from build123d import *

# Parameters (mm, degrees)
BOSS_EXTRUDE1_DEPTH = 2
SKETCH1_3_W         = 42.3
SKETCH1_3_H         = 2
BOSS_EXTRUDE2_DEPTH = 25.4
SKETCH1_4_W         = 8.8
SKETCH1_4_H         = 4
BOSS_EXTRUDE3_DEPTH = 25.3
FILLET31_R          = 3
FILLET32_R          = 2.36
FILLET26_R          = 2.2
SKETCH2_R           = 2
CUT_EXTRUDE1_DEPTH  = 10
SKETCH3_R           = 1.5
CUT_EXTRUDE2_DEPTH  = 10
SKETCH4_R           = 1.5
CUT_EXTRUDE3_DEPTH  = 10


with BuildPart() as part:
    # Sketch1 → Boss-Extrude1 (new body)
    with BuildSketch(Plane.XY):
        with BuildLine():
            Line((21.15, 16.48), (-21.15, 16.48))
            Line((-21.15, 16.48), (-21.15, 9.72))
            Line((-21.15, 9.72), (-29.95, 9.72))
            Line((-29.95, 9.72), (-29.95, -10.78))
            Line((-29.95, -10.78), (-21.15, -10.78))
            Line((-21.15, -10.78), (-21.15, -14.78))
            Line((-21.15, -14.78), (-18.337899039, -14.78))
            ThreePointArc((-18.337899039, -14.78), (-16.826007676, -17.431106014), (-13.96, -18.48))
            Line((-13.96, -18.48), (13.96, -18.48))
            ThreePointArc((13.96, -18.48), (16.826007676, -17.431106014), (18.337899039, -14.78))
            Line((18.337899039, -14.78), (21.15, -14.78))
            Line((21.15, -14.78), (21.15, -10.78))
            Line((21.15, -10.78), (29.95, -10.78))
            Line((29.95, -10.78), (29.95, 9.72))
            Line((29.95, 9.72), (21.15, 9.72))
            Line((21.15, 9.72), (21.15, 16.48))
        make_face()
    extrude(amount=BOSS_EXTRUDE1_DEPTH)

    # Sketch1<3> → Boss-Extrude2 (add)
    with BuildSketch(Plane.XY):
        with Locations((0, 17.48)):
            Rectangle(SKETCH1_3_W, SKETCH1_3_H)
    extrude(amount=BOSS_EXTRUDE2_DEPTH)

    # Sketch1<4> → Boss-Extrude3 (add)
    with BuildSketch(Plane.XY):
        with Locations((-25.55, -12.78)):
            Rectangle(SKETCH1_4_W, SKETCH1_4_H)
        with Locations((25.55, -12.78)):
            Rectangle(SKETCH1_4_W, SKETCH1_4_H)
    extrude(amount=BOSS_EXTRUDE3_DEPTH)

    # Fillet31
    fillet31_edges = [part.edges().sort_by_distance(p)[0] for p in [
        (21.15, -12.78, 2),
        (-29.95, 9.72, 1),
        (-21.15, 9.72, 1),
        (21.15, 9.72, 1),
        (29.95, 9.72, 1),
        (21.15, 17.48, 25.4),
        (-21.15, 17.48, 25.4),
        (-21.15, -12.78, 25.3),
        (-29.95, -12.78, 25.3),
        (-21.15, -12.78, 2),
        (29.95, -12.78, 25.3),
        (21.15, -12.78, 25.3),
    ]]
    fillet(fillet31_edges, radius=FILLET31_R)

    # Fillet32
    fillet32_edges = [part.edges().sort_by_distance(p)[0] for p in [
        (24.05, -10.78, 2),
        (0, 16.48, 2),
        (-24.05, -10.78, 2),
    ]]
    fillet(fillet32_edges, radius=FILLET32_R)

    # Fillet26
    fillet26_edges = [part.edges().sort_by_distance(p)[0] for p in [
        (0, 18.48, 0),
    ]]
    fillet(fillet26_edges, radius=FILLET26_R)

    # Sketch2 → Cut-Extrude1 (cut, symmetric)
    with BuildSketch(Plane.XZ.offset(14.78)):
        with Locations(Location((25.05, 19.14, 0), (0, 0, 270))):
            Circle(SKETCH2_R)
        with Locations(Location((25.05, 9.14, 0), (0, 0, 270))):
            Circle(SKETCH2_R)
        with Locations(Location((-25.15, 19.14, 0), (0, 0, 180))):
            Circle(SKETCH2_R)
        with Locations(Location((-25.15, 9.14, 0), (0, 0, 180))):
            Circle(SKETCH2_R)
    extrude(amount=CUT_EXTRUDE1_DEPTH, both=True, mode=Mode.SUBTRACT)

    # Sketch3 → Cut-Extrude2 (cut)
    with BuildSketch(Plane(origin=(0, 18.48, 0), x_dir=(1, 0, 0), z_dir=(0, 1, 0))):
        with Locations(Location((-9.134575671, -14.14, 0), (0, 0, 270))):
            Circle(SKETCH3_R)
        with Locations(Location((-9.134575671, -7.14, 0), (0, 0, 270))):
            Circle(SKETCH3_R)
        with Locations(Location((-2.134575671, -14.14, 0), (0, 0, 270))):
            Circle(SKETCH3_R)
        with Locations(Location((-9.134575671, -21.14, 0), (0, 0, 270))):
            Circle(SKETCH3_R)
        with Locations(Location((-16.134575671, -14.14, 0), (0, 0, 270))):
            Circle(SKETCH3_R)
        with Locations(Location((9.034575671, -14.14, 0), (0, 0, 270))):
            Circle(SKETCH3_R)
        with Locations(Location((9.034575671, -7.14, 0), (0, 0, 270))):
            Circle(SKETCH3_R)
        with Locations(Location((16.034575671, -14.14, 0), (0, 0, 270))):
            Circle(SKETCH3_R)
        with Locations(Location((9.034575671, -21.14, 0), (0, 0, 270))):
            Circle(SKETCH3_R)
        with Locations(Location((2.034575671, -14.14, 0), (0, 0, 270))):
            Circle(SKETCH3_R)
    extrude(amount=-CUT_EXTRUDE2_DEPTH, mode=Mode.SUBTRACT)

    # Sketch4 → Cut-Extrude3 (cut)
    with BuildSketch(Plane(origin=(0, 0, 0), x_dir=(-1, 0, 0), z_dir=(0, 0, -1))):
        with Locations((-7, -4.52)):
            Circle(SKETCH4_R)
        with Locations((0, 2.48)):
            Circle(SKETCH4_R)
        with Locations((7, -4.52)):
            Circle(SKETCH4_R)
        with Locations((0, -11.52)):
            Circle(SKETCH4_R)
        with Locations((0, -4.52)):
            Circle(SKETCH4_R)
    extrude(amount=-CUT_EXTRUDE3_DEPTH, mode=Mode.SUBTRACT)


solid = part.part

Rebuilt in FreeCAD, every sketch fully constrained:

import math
import FreeCAD as App
import Part
import Sketcher
from FreeCAD import Vector
Q = App.Units.Quantity


def edges_at(feature, points):
    """Names of the edges that pass closest to the given points."""
    edges = feature.Shape.Edges
    near = lambda p: min(range(len(edges)), key=lambda i: edges[i].distToShape(Part.Vertex(*p))[0])
    return sorted({f"Edge{near(p) + 1}" for p in points})


def add_polygon(sketch, points):
    """Adds a closed chain of lines whose ends are joined by coincident constraints."""
    first, n = sketch.GeometryCount, len(points)
    for a, b in zip(points, points[1:] + points[:1]):
        sketch.addGeometry(Part.LineSegment(App.Vector(*a, 0), App.Vector(*b, 0)), False)
    for i in range(n):
        sketch.addConstraint(Sketcher.Constraint("Coincident", first + i, 2, first + (i + 1) % n, 1))

doc = App.newDocument("Part")
params = doc.addObject("Spreadsheet::Sheet", "Params")
for row, (alias, value) in enumerate([
    ("sketch1_height", "4 mm"),
    ("sketch1_radius", "4.44 mm"),
    ("sketch1_width", "42.3 mm"),
    ("sketch1_width2", "8.8 mm"),
    ("sketch1_height2", "20.5 mm"),
    ("pad1_length", "2 mm"),
    ("sketch2_height", "2 mm"),
    ("sketch2_width", "42.3 mm"),
    ("pad2_length", "25.4 mm"),
    ("sketch3_height", "4 mm"),
    ("sketch3_width", "8.8 mm"),
    ("pad3_length", "25.3 mm"),
    ("fillet_radius", "3 mm"),
    ("fillet2_radius", "2.36 mm"),
    ("fillet3_radius", "2.2 mm"),
    ("sketch4_diameter", "4 mm"),
    ("pocket1_length", "20 mm"),
    ("sketch5_diameter", "3 mm"),
    ("pocket2_length", "10 mm"),
    ("sketch6_diameter", "3 mm"),
    ("pocket3_length", "10 mm"),
], start=1):
    params.set(f"A{row}", alias)
    params.set(f"B{row}", "=" + value)
    params.setAlias(f"B{row}", alias)

body = doc.addObject("PartDesign::Body", "Body")

# Sketch on XY plane
sketch1 = body.newObject("Sketcher::SketchObject", "Sketch")
sketch1.AttachmentSupport = (doc.getObject("XY_Plane"), [""])
sketch1.MapMode = "FlatFace"
sketch1.addGeometry([
    Part.LineSegment(Vector(21.15, 16.48, 0), Vector(-21.15, 16.48, 0)),  # 0
    Part.LineSegment(Vector(-21.15, 16.48, 0), Vector(-21.15, 9.72, 0)),  # 1
    Part.LineSegment(Vector(-21.15, 9.72, 0), Vector(-29.95, 9.72, 0)),  # 2
    Part.LineSegment(Vector(-29.95, 9.72, 0), Vector(-29.95, -10.78, 0)),  # 3
    Part.LineSegment(Vector(-29.95, -10.78, 0), Vector(-21.15, -10.78, 0)),  # 4
    Part.LineSegment(Vector(-21.15, -10.78, 0), Vector(-21.15, -14.78, 0)),  # 5
    Part.LineSegment(Vector(-21.15, -14.78, 0), Vector(-18.337899, -14.78, 0)),  # 6
    Part.ArcOfCircle(Part.Circle(Vector(-13.96, -14.04, 0), Vector(0, 0, 1), 4.44), math.radians(-170.405932), math.radians(-90)),  # 7
    Part.LineSegment(Vector(-13.96, -18.48, 0), Vector(13.96, -18.48, 0)),  # 8
    Part.ArcOfCircle(Part.Circle(Vector(13.96, -14.04, 0), Vector(0, 0, 1), 4.44), math.radians(-90), math.radians(-9.594068)),  # 9
    Part.LineSegment(Vector(18.337899, -14.78, 0), Vector(21.15, -14.78, 0)),  # 10
    Part.LineSegment(Vector(21.15, -14.78, 0), Vector(21.15, -10.78, 0)),  # 11
    Part.LineSegment(Vector(21.15, -10.78, 0), Vector(29.95, -10.78, 0)),  # 12
    Part.LineSegment(Vector(29.95, -10.78, 0), Vector(29.95, 9.72, 0)),  # 13
    Part.LineSegment(Vector(29.95, 9.72, 0), Vector(21.15, 9.72, 0)),  # 14
    Part.LineSegment(Vector(21.15, 9.72, 0), Vector(21.15, 16.48, 0)),  # 15
], False)
sketch1.addConstraint([
    Sketcher.Constraint("Coincident", 0, 2, 1, 1),
    Sketcher.Constraint("Coincident", 1, 2, 2, 1),
    Sketcher.Constraint("Coincident", 2, 2, 3, 1),
    Sketcher.Constraint("Coincident", 3, 2, 4, 1),
    Sketcher.Constraint("Coincident", 4, 2, 5, 1),
    Sketcher.Constraint("Coincident", 5, 2, 6, 1),
    Sketcher.Constraint("Coincident", 6, 2, 7, 1),
    Sketcher.Constraint("Tangent", 7, 2, 8, 1),
    Sketcher.Constraint("Tangent", 8, 2, 9, 1),
    Sketcher.Constraint("Coincident", 9, 2, 10, 1),
    Sketcher.Constraint("Coincident", 10, 2, 11, 1),
    Sketcher.Constraint("Coincident", 11, 2, 12, 1),
    Sketcher.Constraint("Coincident", 12, 2, 13, 1),
    Sketcher.Constraint("Coincident", 13, 2, 14, 1),
    Sketcher.Constraint("Coincident", 14, 2, 15, 1),
    Sketcher.Constraint("Coincident", 15, 2, 0, 1),
    Sketcher.Constraint("Horizontal", 0),
    Sketcher.Constraint("Vertical", 1),
    Sketcher.Constraint("Horizontal", 2),
    Sketcher.Constraint("Vertical", 3),
    Sketcher.Constraint("Horizontal", 4),
    Sketcher.Constraint("Vertical", 5),
    Sketcher.Constraint("Horizontal", 6),
    Sketcher.Constraint("Horizontal", 8),
    Sketcher.Constraint("Horizontal", 10),
    Sketcher.Constraint("Vertical", 11),
    Sketcher.Constraint("Horizontal", 12),
    Sketcher.Constraint("Vertical", 13),
    Sketcher.Constraint("Horizontal", 14),
    Sketcher.Constraint("Vertical", 15),
    Sketcher.Constraint("Equal", 7, 9),
    Sketcher.Constraint("Symmetric", 6, 2, 9, 2, -2),
    Sketcher.Constraint("Symmetric", 4, 2, 11, 2, -2),
    Sketcher.Constraint("Symmetric", 2, 2, 13, 2, -2),
    Sketcher.Constraint("Vertical", 1, 2, 4, 2),
    Sketcher.Constraint("Vertical", 11, 2, 14, 2),
    Sketcher.Constraint("DistanceY", 5, 2, 5, 1, Q("4 mm")),
    Sketcher.Constraint("Radius", 7, Q("4.44 mm")),
    Sketcher.Constraint("DistanceX", 0, 2, 0, 1, Q("42.3 mm")),
    Sketcher.Constraint("DistanceX", 2, 2, 2, 1, Q("8.8 mm")),
    Sketcher.Constraint("DistanceY", 3, 2, 3, 1, Q("20.5 mm")),
    Sketcher.Constraint("DistanceX", 8, 1, 8, 2, Q("27.92 mm")),
    Sketcher.Constraint("DistanceY", 1, 2, 1, 1, Q("6.76 mm")),
    Sketcher.Constraint("DistanceY", 7, 2, 6, 2, Q("3.7 mm")),
    Sketcher.Constraint("DistanceY", 7, 3, -1, 1, Q("14.04 mm")),
])
sketch1.setExpression("Constraints[36]", "Params.sketch1_height")
sketch1.setExpression("Constraints[37]", "Params.sketch1_radius")
sketch1.setExpression("Constraints[38]", "Params.sketch1_width")
sketch1.setExpression("Constraints[39]", "Params.sketch1_width2")
sketch1.setExpression("Constraints[40]", "Params.sketch1_height2")
pad1 = body.newObject("PartDesign::Pad", "Pad")
pad1.Profile = sketch1
pad1.setExpression("Length", "Params.pad1_length")

# Sketch on XY plane
sketch2 = body.newObject("Sketcher::SketchObject", "Sketch001")
sketch2.AttachmentSupport = (doc.getObject("XY_Plane"), [""])
sketch2.MapMode = "FlatFace"
add_polygon(sketch2, [(-21.15, 18.48), (-21.15, 16.48), (21.15, 16.48), (21.15, 18.48)])  # lines 0-3
sketch2.addConstraint([
    Sketcher.Constraint("Vertical", 0),
    Sketcher.Constraint("Horizontal", 1),
    Sketcher.Constraint("Vertical", 2),
    Sketcher.Constraint("Horizontal", 3),
    Sketcher.Constraint("DistanceY", 0, 2, 0, 1, Q("2 mm")),
    Sketcher.Constraint("DistanceX", 1, 1, 1, 2, Q("42.3 mm")),
    Sketcher.Constraint("DistanceX", 0, 2, -1, 1, Q("21.15 mm")),
    Sketcher.Constraint("DistanceY", -1, 1, 0, 2, Q("16.48 mm")),
])
sketch2.setExpression("Constraints[8]", "Params.sketch2_height")
sketch2.setExpression("Constraints[9]", "Params.sketch2_width")
pad2 = body.newObject("PartDesign::Pad", "Pad001")
pad2.Profile = sketch2
pad2.setExpression("Length", "Params.pad2_length")

# Sketch on XY plane
sketch3 = body.newObject("Sketcher::SketchObject", "Sketch002")
sketch3.AttachmentSupport = (doc.getObject("XY_Plane"), [""])
sketch3.MapMode = "FlatFace"
add_polygon(sketch3, [(-29.95, -10.78), (-29.95, -14.78), (-21.15, -14.78), (-21.15, -10.78)])  # lines 0-3
add_polygon(sketch3, [(21.15, -10.78), (21.15, -14.78), (29.95, -14.78), (29.95, -10.78)])  # lines 4-7
sketch3.addConstraint([
    Sketcher.Constraint("Vertical", 0),
    Sketcher.Constraint("Horizontal", 1),
    Sketcher.Constraint("Vertical", 2),
    Sketcher.Constraint("Horizontal", 3),
    Sketcher.Constraint("Vertical", 4),
    Sketcher.Constraint("Horizontal", 5),
    Sketcher.Constraint("Vertical", 6),
    Sketcher.Constraint("Horizontal", 7),
    Sketcher.Constraint("Symmetric", 1, 2, 4, 2, -2),
    Sketcher.Constraint("Symmetric", 3, 2, 6, 2, -2),
    Sketcher.Constraint("DistanceY", 0, 2, 0, 1, Q("4 mm")),
    Sketcher.Constraint("DistanceX", 1, 1, 1, 2, Q("8.8 mm")),
    Sketcher.Constraint("DistanceX", 1, 2, 4, 2, Q("42.3 mm")),
    Sketcher.Constraint("DistanceY", 0, 2, -1, 1, Q("14.78 mm")),
])
sketch3.setExpression("Constraints[18]", "Params.sketch3_height")
sketch3.setExpression("Constraints[19]", "Params.sketch3_width")
pad3 = body.newObject("PartDesign::Pad", "Pad002")
pad3.Profile = sketch3
pad3.setExpression("Length", "Params.pad3_length")
doc.recompute()

fillet = body.newObject("PartDesign::Fillet", "Fillet")
fillet.Base = (pad3, edges_at(pad3, [
    (21.15, -12.78, 2),
    (-29.95, 9.72, 1),
    (-21.15, 9.72, 1),
    (21.15, 9.72, 1),
    (29.95, 9.72, 1),
    (21.15, 17.48, 25.4),
    (-21.15, 17.48, 25.4),
    (-21.15, -12.78, 25.3),
    (-29.95, -12.78, 25.3),
    (-21.15, -12.78, 2),
    (29.95, -12.78, 25.3),
    (21.15, -12.78, 25.3),
]))
fillet.setExpression("Radius", "Params.fillet_radius")
doc.recompute()

fillet2 = body.newObject("PartDesign::Fillet", "Fillet001")
fillet2.Base = (fillet, edges_at(fillet, [(24.05, -10.78, 2), (0, 16.48, 2), (-24.05, -10.78, 2)]))
fillet2.setExpression("Radius", "Params.fillet2_radius")
doc.recompute()

fillet3 = body.newObject("PartDesign::Fillet", "Fillet002")
fillet3.Base = (fillet2, edges_at(fillet2, [(0, 18.48, 0)]))
fillet3.setExpression("Radius", "Params.fillet3_radius")

# Sketch on XZ plane
sketch4 = body.newObject("Sketcher::SketchObject", "Sketch003")
sketch4.AttachmentSupport = (doc.getObject("XZ_Plane"), [""])
sketch4.MapMode = "FlatFace"
sketch4.AttachmentOffset = App.Placement(Vector(0, 0, 14.78), App.Rotation())
sketch4.addGeometry([
    Part.Circle(Vector(25.05, 19.14, 0), Vector(0, 0, 1), 2),
    Part.Circle(Vector(25.05, 9.14, 0), Vector(0, 0, 1), 2),
    Part.Circle(Vector(-25.15, 19.14, 0), Vector(0, 0, 1), 2),
    Part.Circle(Vector(-25.15, 9.14, 0), Vector(0, 0, 1), 2),
], False)
sketch4.addConstraint([
    Sketcher.Constraint("Equal", 0, 1),
    Sketcher.Constraint("Equal", 1, 2),
    Sketcher.Constraint("Equal", 2, 3),
    Sketcher.Constraint("Horizontal", 0, 3, 2, 3),
    Sketcher.Constraint("Horizontal", 1, 3, 3, 3),
    Sketcher.Constraint("Vertical", 0, 3, 1, 3),
    Sketcher.Constraint("Vertical", 2, 3, 3, 3),
    Sketcher.Constraint("Diameter", 0, Q("4 mm")),
    Sketcher.Constraint("DistanceY", 1, 3, 0, 3, Q("10 mm")),
    Sketcher.Constraint("DistanceX", 2, 3, 0, 3, Q("50.2 mm")),
    Sketcher.Constraint("DistanceX", -1, 1, 0, 3, Q("25.05 mm")),
    Sketcher.Constraint("DistanceY", -1, 1, 0, 3, Q("19.14 mm")),
])
sketch4.setExpression("Constraints[7]", "Params.sketch4_diameter")
pocket1 = body.newObject("PartDesign::Pocket", "Pocket")
pocket1.Profile = sketch4
pocket1.setExpression("Length", "Params.pocket1_length")
pocket1.Midplane = True

# Sketch on XZ plane
sketch5 = body.newObject("Sketcher::SketchObject", "Sketch004")
sketch5.AttachmentSupport = (doc.getObject("XZ_Plane"), [""])
sketch5.MapMode = "FlatFace"
sketch5.AttachmentOffset = App.Placement(Vector(0, 0, -18.48), App.Rotation())
sketch5.addGeometry([
    Part.Circle(Vector(-9.134576, 14.14, 0), Vector(0, 0, 1), 1.5),  # 0
    Part.Circle(Vector(-9.134576, 7.14, 0), Vector(0, 0, 1), 1.5),  # 1
    Part.Circle(Vector(-2.134576, 14.14, 0), Vector(0, 0, 1), 1.5),  # 2
    Part.Circle(Vector(-9.134576, 21.14, 0), Vector(0, 0, 1), 1.5),  # 3
    Part.Circle(Vector(-16.134576, 14.14, 0), Vector(0, 0, 1), 1.5),  # 4
    Part.Circle(Vector(9.034576, 14.14, 0), Vector(0, 0, 1), 1.5),  # 5
    Part.Circle(Vector(9.034576, 7.14, 0), Vector(0, 0, 1), 1.5),  # 6
    Part.Circle(Vector(16.034576, 14.14, 0), Vector(0, 0, 1), 1.5),  # 7
    Part.Circle(Vector(9.034576, 21.14, 0), Vector(0, 0, 1), 1.5),  # 8
    Part.Circle(Vector(2.034576, 14.14, 0), Vector(0, 0, 1), 1.5),  # 9
], False)
sketch5.addConstraint([
    Sketcher.Constraint("Equal", 0, 1),
    Sketcher.Constraint("Equal", 1, 2),
    Sketcher.Constraint("Equal", 2, 3),
    Sketcher.Constraint("Equal", 3, 4),
    Sketcher.Constraint("Equal", 4, 5),
    Sketcher.Constraint("Equal", 5, 6),
    Sketcher.Constraint("Equal", 6, 7),
    Sketcher.Constraint("Equal", 7, 8),
    Sketcher.Constraint("Equal", 8, 9),
    Sketcher.Constraint("Horizontal", 0, 3, 2, 3),
    Sketcher.Constraint("Horizontal", 2, 3, 4, 3),
    Sketcher.Constraint("Horizontal", 4, 3, 5, 3),
    Sketcher.Constraint("Horizontal", 1, 3, 6, 3),
    Sketcher.Constraint("Horizontal", 5, 3, 7, 3),
    Sketcher.Constraint("Horizontal", 3, 3, 8, 3),
    Sketcher.Constraint("Horizontal", 7, 3, 9, 3),
    Sketcher.Constraint("Vertical", 0, 3, 1, 3),
    Sketcher.Constraint("Vertical", 1, 3, 3, 3),
    Sketcher.Constraint("Vertical", 5, 3, 6, 3),
    Sketcher.Constraint("Vertical", 6, 3, 8, 3),
    Sketcher.Constraint("Diameter", 0, Q("3 mm")),
    Sketcher.Constraint("DistanceY", 1, 3, 0, 3, Q("7 mm")),
    Sketcher.Constraint("DistanceX", 0, 3, 2, 3, Q("7 mm")),
    Sketcher.Constraint("DistanceY", 0, 3, 3, 3, Q("7 mm")),
    Sketcher.Constraint("DistanceX", 4, 3, 0, 3, Q("7 mm")),
    Sketcher.Constraint("DistanceX", 5, 3, 7, 3, Q("7 mm")),
    Sketcher.Constraint("DistanceX", 9, 3, 5, 3, Q("7 mm")),
    Sketcher.Constraint("DistanceY", -1, 1, 0, 3, Q("14.14 mm")),
    Sketcher.Constraint("DistanceX", 2, 3, 5, 3, Q("11.169151 mm")),
    Sketcher.Constraint("DistanceX", 0, 3, -1, 1, Q("9.134576 mm")),
])
sketch5.setExpression("Constraints[20]", "Params.sketch5_diameter")
pocket2 = body.newObject("PartDesign::Pocket", "Pocket001")
pocket2.Profile = sketch5
pocket2.setExpression("Length", "Params.pocket2_length")
pocket2.Reversed = True

# Sketch on XY plane
sketch6 = body.newObject("Sketcher::SketchObject", "Sketch005")
sketch6.AttachmentSupport = (doc.getObject("XY_Plane"), [""])
sketch6.MapMode = "FlatFace"
sketch6.addGeometry([
    Part.Circle(Vector(7, -4.52, 0), Vector(0, 0, 1), 1.5),  # 0
    Part.Circle(Vector(0, 2.48, 0), Vector(0, 0, 1), 1.5),  # 1
    Part.Circle(Vector(-7, -4.52, 0), Vector(0, 0, 1), 1.5),  # 2
    Part.Circle(Vector(0, -11.52, 0), Vector(0, 0, 1), 1.5),  # 3
    Part.Circle(Vector(0, -4.52, 0), Vector(0, 0, 1), 1.5),  # 4
], False)
sketch6.addConstraint([
    Sketcher.Constraint("Equal", 0, 1),
    Sketcher.Constraint("Equal", 1, 2),
    Sketcher.Constraint("Equal", 2, 3),
    Sketcher.Constraint("Equal", 3, 4),
    Sketcher.Constraint("Symmetric", 0, 3, 2, 3, -2),
    Sketcher.Constraint("PointOnObject", 1, 3, -2),
    Sketcher.Constraint("PointOnObject", 3, 3, -2),
    Sketcher.Constraint("PointOnObject", 4, 3, -2),
    Sketcher.Constraint("Horizontal", 2, 3, 4, 3),
    Sketcher.Constraint("Diameter", 0, Q("3 mm")),
    Sketcher.Constraint("DistanceX", -1, 1, 0, 3, Q("7 mm")),
    Sketcher.Constraint("DistanceY", 0, 3, 1, 3, Q("7 mm")),
    Sketcher.Constraint("DistanceY", 3, 3, 0, 3, Q("7 mm")),
    Sketcher.Constraint("DistanceY", 0, 3, -1, 1, Q("4.52 mm")),
])
sketch6.setExpression("Constraints[9]", "Params.sketch6_diameter")
pocket3 = body.newObject("PartDesign::Pocket", "Pocket002")
pocket3.Profile = sketch6
pocket3.setExpression("Length", "Params.pocket3_length")
pocket3.Reversed = True

doc.recompute()
